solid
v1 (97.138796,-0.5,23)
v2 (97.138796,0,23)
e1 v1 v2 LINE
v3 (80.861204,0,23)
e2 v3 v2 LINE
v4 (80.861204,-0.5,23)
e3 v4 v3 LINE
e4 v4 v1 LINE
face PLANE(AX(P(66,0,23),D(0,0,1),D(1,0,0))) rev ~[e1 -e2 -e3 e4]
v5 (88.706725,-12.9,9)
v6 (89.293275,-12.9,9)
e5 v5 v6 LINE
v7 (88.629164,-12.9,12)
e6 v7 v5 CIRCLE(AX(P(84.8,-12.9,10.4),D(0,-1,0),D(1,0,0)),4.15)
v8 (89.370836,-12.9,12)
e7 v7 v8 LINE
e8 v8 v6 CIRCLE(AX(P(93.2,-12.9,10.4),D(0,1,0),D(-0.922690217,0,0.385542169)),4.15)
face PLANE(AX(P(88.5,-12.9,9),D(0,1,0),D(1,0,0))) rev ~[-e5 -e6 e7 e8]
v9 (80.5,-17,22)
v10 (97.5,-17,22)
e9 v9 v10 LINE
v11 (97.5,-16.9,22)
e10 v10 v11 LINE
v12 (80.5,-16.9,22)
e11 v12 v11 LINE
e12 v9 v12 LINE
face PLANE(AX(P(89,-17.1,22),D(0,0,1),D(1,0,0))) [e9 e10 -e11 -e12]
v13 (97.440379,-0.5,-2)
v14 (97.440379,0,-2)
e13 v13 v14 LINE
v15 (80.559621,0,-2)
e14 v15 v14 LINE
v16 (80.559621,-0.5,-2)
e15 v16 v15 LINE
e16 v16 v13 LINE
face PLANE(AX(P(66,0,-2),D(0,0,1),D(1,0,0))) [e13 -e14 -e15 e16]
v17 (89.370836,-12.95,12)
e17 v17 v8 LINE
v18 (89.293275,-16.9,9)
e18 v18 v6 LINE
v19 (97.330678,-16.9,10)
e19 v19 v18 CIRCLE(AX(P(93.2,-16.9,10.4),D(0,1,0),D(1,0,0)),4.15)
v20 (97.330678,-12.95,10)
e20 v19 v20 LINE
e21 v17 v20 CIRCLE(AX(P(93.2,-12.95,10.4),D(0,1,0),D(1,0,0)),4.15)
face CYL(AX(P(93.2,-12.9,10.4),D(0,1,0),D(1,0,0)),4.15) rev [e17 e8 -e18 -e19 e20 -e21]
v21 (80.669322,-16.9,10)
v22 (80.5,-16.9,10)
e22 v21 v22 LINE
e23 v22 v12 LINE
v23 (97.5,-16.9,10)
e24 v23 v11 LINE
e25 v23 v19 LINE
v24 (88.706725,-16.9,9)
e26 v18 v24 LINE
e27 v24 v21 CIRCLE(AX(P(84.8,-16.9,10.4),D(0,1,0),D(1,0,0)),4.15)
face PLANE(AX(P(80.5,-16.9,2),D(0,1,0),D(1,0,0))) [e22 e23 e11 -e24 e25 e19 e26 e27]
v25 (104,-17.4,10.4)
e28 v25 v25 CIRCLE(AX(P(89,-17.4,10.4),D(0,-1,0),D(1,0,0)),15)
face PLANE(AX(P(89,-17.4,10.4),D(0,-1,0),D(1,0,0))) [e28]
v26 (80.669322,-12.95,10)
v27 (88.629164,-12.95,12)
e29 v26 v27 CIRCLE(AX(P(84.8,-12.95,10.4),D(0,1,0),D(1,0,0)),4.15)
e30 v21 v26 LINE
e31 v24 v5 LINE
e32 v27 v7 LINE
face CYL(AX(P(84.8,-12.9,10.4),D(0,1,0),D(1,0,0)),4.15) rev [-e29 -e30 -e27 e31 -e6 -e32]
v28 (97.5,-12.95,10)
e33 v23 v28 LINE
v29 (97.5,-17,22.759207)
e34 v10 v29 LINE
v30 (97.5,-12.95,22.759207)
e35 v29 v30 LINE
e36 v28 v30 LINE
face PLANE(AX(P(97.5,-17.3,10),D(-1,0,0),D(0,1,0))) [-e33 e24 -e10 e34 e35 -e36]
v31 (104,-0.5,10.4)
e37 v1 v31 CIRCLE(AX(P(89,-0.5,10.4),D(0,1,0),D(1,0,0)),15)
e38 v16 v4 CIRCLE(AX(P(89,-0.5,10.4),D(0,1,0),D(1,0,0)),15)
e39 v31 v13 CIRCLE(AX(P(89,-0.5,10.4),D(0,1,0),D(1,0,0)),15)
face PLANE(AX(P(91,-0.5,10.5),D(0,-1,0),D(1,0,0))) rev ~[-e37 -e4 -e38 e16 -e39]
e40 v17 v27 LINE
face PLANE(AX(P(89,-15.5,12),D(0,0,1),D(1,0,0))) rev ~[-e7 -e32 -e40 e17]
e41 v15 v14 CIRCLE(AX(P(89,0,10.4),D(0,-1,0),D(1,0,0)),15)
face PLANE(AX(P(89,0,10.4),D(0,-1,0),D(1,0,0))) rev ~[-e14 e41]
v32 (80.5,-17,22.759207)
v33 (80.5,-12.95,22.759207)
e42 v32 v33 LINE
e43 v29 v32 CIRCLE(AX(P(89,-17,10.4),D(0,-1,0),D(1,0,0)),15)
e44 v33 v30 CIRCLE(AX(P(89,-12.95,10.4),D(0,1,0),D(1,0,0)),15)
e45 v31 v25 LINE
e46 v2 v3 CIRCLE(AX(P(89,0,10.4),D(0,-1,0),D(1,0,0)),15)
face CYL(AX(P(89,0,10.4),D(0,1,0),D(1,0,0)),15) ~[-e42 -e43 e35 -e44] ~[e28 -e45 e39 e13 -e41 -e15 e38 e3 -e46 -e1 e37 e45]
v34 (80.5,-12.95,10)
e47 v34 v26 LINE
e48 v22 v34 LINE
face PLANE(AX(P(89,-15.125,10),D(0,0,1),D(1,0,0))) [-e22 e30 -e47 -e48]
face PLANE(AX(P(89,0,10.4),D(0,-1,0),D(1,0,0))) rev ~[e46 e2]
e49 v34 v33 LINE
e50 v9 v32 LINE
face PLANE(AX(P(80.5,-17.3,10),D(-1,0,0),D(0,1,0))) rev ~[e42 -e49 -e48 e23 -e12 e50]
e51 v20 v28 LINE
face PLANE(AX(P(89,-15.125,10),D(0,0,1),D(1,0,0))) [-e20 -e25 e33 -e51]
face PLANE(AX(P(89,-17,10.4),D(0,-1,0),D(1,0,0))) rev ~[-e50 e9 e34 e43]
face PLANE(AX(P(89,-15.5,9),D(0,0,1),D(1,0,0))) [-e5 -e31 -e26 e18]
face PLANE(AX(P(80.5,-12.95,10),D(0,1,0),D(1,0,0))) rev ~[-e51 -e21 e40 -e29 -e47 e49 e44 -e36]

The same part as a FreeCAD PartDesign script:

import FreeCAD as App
import Part
import Sketcher
from FreeCAD import Vector
Q = App.Units.Quantity


def add_polygon(sketch, points):
    """Adds a closed chain of lines whose ends are joined by coincident constraints."""
    first, n = sketch.GeometryCount, len(points)
    for a, b in zip(points, points[1:] + points[:1]):
        sketch.addGeometry(Part.LineSegment(App.Vector(*a, 0), App.Vector(*b, 0)), False)
    for i in range(n):
        sketch.addConstraint(Sketcher.Constraint("Coincident", first + i, 2, first + (i + 1) % n, 1))

doc = App.newDocument("Part")
params = doc.addObject("Spreadsheet::Sheet", "Params")
for row, (alias, value) in enumerate([
    ("sketch1_diameter", "30 mm"),
    ("pad1_length", "0.4 mm"),
    ("sketch2_width", "17 mm"),
    ("sketch2_height", "0.4 mm"),
    ("pad2_length", "20 mm"),
    ("sketch3_width", "17 mm"),
    ("sketch3_height", "4.35 mm"),
    ("pad3_length", "28 mm"),
    ("sketch4_width", "1 mm"),
    ("sketch4_height", "5.2 mm"),
    ("pad4_length", "3 mm"),
    ("sketch5_diameter", "8.3 mm"),
    ("pad5_length", "10 mm"),
    ("sketch6_diameter", "8.3 mm"),
    ("pad6_length", "10 mm"),
    ("sketch7_width", "50 mm"),
    ("sketch7_height", "25 mm"),
    ("pad7_length", "0.5 mm"),
    ("sketch8_diameter", "30 mm"),
    ("pad8_length", "17.25 mm"),
], start=1):
    params.set(f"A{row}", alias)
    params.set(f"B{row}", "=" + value)
    params.setAlias(f"B{row}", alias)

body = doc.addObject("PartDesign::Body", "Body")

# Sketch on XZ plane
sketch1 = doc.addObject("Sketcher::SketchObject", "Sketch")
body.addObject(sketch1)
sketch1.AttachmentSupport = (doc.XZ_Plane, [""])
sketch1.MapMode = "FlatFace"
sketch1.addGeometry(Part.Circle(Vector(89, 10.4, 0), Vector(0, 0, 1), 15), False)
sketch1.addConstraint([
    Sketcher.Constraint("Diameter", 0, Q("30 mm")),
    Sketcher.Constraint("DistanceX", -1, 1, 0, 3, Q("89 mm")),
    Sketcher.Constraint("DistanceY", -1, 1, 0, 3, Q("10.4 mm")),
])
sketch1.setExpression("Constraints[0]", "Params.sketch1_diameter")
pad1 = doc.addObject("PartDesign::Pad", "Pad")
body.addObject(pad1)
pad1.Profile = sketch1
pad1.setExpression("Length", "Params.pad1_length")
body2 = doc.addObject("PartDesign::Body", "Body001")
doc.recompute()

body.Placement = App.Placement(Vector(0, -17, 0), App.Rotation(Vector(0, 0, 1), 0))
boolean = doc.addObject("PartDesign::Boolean", "Boolean")
body2.addObject(boolean)
boolean.Type = "Fuse"
boolean.addObjects([body])
body3 = doc.addObject("PartDesign::Body", "Body002")

# Sketch on XY plane
sketch2 = doc.addObject("Sketcher::SketchObject", "Sketch001")
body3.addObject(sketch2)
sketch2.AttachmentSupport = (doc.getObject("XY_Plane002"), [""])
sketch2.MapMode = "FlatFace"
sketch2.AttachmentOffset = App.Placement(Vector(0, 0, 2), App.Rotation())
add_polygon(sketch2, [(80.5, -16.9), (80.5, -17.3), (97.5, -17.3), (97.5, -16.9)])  # lines 0-3
sketch2.addConstraint([
    Sketcher.Constraint("Vertical", 0),
    Sketcher.Constraint("Horizontal", 1),
    Sketcher.Constraint("Vertical", 2),
    Sketcher.Constraint("Horizontal", 3),
    Sketcher.Constraint("DistanceX", 1, 1, 1, 2, Q("17 mm")),
    Sketcher.Constraint("DistanceY", 0, 2, 0, 1, Q("0.4 mm")),
    Sketcher.Constraint("DistanceX", -1, 1, 0, 2, Q("80.5 mm")),
    Sketcher.Constraint("DistanceY", 0, 2, -1, 1, Q("17.3 mm")),
])
sketch2.setExpression("Constraints[8]", "Params.sketch2_width")
sketch2.setExpression("Constraints[9]", "Params.sketch2_height")
pad2 = doc.addObject("PartDesign::Pad", "Pad001")
body3.addObject(pad2)
pad2.Profile = sketch2
pad2.setExpression("Length", "Params.pad2_length")
body4 = doc.addObject("PartDesign::Body", "Body003")

# Sketch on XY plane
sketch3 = doc.addObject("Sketcher::SketchObject", "Sketch002")
body4.addObject(sketch3)
sketch3.AttachmentSupport = (doc.getObject("XY_Plane003"), [""])
sketch3.MapMode = "FlatFace"
sketch3.AttachmentOffset = App.Placement(Vector(0, 0, 10), App.Rotation())
add_polygon(sketch3, [(80.5, -12.95), (80.5, -17.3), (97.5, -17.3), (97.5, -12.95)])  # lines 0-3
sketch3.addConstraint([
    Sketcher.Constraint("Vertical", 0),
    Sketcher.Constraint("Horizontal", 1),
    Sketcher.Constraint("Vertical", 2),
    Sketcher.Constraint("Horizontal", 3),
    Sketcher.Constraint("DistanceX", 1, 1, 1, 2, Q("17 mm")),
    Sketcher.Constraint("DistanceY", 0, 2, 0, 1, Q("4.35 mm")),
    Sketcher.Constraint("DistanceX", -1, 1, 0, 2, Q("80.5 mm")),
    Sketcher.Constraint("DistanceY", 0, 2, -1, 1, Q("17.3 mm")),
])
sketch3.setExpression("Constraints[8]", "Params.sketch3_width")
sketch3.setExpression("Constraints[9]", "Params.sketch3_height")
pad3 = doc.addObject("PartDesign::Pad", "Pad002")
body4.addObject(pad3)
pad3.Profile = sketch3
pad3.setExpression("Length", "Params.pad3_length")
body5 = doc.addObject("PartDesign::Body", "Body004")

# Sketch on XY plane
sketch4 = doc.addObject("Sketcher::SketchObject", "Sketch003")
body5.addObject(sketch4)
sketch4.AttachmentSupport = (doc.getObject("XY_Plane004"), [""])
sketch4.MapMode = "FlatFace"
sketch4.AttachmentOffset = App.Placement(Vector(0, 0, 9), App.Rotation())
add_polygon(sketch4, [(88.5, -12.9), (88.5, -18.1), (89.5, -18.1), (89.5, -12.9)])  # lines 0-3
sketch4.addConstraint([
    Sketcher.Constraint("Vertical", 0),
    Sketcher.Constraint("Horizontal", 1),
    Sketcher.Constraint("Vertical", 2),
    Sketcher.Constraint("Horizontal", 3),
    Sketcher.Constraint("DistanceX", 1, 1, 1, 2, Q("1 mm")),
    Sketcher.Constraint("DistanceY", 0, 2, 0, 1, Q("5.2 mm")),
    Sketcher.Constraint("DistanceX", -1, 1, 0, 2, Q("88.5 mm")),
    Sketcher.Constraint("DistanceY", 0, 2, -1, 1, Q("18.1 mm")),
])
sketch4.setExpression("Constraints[8]", "Params.sketch4_width")
sketch4.setExpression("Constraints[9]", "Params.sketch4_height")
pad4 = doc.addObject("PartDesign::Pad", "Pad003")
body5.addObject(pad4)
pad4.Profile = sketch4
pad4.setExpression("Length", "Params.pad4_length")
body6 = doc.addObject("PartDesign::Body", "Body005")

# Sketch on XZ plane
sketch5 = doc.addObject("Sketcher::SketchObject", "Sketch004")
body6.addObject(sketch5)
sketch5.AttachmentSupport = (doc.getObject("XZ_Plane005"), [""])
sketch5.MapMode = "FlatFace"
sketch5.AttachmentOffset = App.Placement(Vector(0, 0, 12.9), App.Rotation())
sketch5.addGeometry(Part.Circle(Vector(93.2, 10.4, 0), Vector(0, 0, 1), 4.15), False)
sketch5.addConstraint([
    Sketcher.Constraint("Diameter", 0, Q("8.3 mm")),
    Sketcher.Constraint("DistanceX", -1, 1, 0, 3, Q("93.2 mm")),
    Sketcher.Constraint("DistanceY", -1, 1, 0, 3, Q("10.4 mm")),
])
sketch5.setExpression("Constraints[0]", "Params.sketch5_diameter")
pad5 = doc.addObject("PartDesign::Pad", "Pad004")
body6.addObject(pad5)
pad5.Profile = sketch5
pad5.setExpression("Length", "Params.pad5_length")
body7 = doc.addObject("PartDesign::Body", "Body006")

# Sketch on XZ plane
sketch6 = doc.addObject("Sketcher::SketchObject", "Sketch005")
body7.addObject(sketch6)
sketch6.AttachmentSupport = (doc.getObject("XZ_Plane006"), [""])
sketch6.MapMode = "FlatFace"
sketch6.AttachmentOffset = App.Placement(Vector(0, 0, 12.9), App.Rotation())
sketch6.addGeometry(Part.Circle(Vector(84.8, 10.4, 0), Vector(0, 0, 1), 4.15), False)
sketch6.addConstraint([
    Sketcher.Constraint("Diameter", 0, Q("8.3 mm")),
    Sketcher.Constraint("DistanceX", -1, 1, 0, 3, Q("84.8 mm")),
    Sketcher.Constraint("DistanceY", -1, 1, 0, 3, Q("10.4 mm")),
])
sketch6.setExpression("Constraints[0]", "Params.sketch6_diameter")
pad6 = doc.addObject("PartDesign::Pad", "Pad005")
body7.addObject(pad6)
pad6.Profile = sketch6
pad6.setExpression("Length", "Params.pad6_length")
body8 = doc.addObject("PartDesign::Body", "Body007")

# Sketch on XZ plane
sketch7 = doc.addObject("Sketcher::SketchObject", "Sketch006")
body8.addObject(sketch7)
sketch7.AttachmentSupport = (doc.getObject("XZ_Plane007"), [""])
sketch7.MapMode = "FlatFace"
add_polygon(sketch7, [(66, 23), (66, -2), (116, -2), (116, 23)])  # lines 0-3
sketch7.addConstraint([
    Sketcher.Constraint("Vertical", 0),
    Sketcher.Constraint("Horizontal", 1),
    Sketcher.Constraint("Vertical", 2),
    Sketcher.Constraint("Horizontal", 3),
    Sketcher.Constraint("DistanceX", 1, 1, 1, 2, Q("50 mm")),
    Sketcher.Constraint("DistanceY", 0, 2, 0, 1, Q("25 mm")),
    Sketcher.Constraint("DistanceX", -1, 1, 0, 2, Q("66 mm")),
    Sketcher.Constraint("DistanceY", 0, 2, -1, 1, Q("2 mm")),
])
sketch7.setExpression("Constraints[8]", "Params.sketch7_width")
sketch7.setExpression("Constraints[9]", "Params.sketch7_height")
pad7 = doc.addObject("PartDesign::Pad", "Pad006")
body8.addObject(pad7)
pad7.Profile = sketch7
pad7.setExpression("Length", "Params.pad7_length")
body9 = doc.addObject("PartDesign::Body", "Body008")

# Sketch on XZ plane
sketch8 = doc.addObject("Sketcher::SketchObject", "Sketch007")
body9.addObject(sketch8)
sketch8.AttachmentSupport = (doc.getObject("XZ_Plane008"), [""])
sketch8.MapMode = "FlatFace"
sketch8.addGeometry(Part.Circle(Vector(89, 10.4, 0), Vector(0, 0, 1), 15), False)
sketch8.addConstraint([
    Sketcher.Constraint("Diameter", 0, Q("30 mm")),
    Sketcher.Constraint("DistanceX", -1, 1, 0, 3, Q("89 mm")),
    Sketcher.Constraint("DistanceY", -1, 1, 0, 3, Q("10.4 mm")),
])
sketch8.setExpression("Constraints[0]", "Params.sketch8_diameter")
pad8 = doc.addObject("PartDesign::Pad", "Pad007")
body9.addObject(pad8)
pad8.Profile = sketch8
pad8.setExpression("Length", "Params.pad8_length")
doc.recompute()

boolean2 = doc.addObject("PartDesign::Boolean", "Boolean001")
body9.addObject(boolean2)
boolean2.Type = "Cut"
boolean2.addObjects([body8])
doc.recompute()

boolean3 = doc.addObject("PartDesign::Boolean", "Boolean002")
body9.addObject(boolean3)
boolean3.Type = "Cut"
boolean3.addObjects([body7])
doc.recompute()

boolean4 = doc.addObject("PartDesign::Boolean", "Boolean003")
body9.addObject(boolean4)
boolean4.Type = "Cut"
boolean4.addObjects([body6])
doc.recompute()

boolean5 = doc.addObject("PartDesign::Boolean", "Boolean004")
body9.addObject(boolean5)
boolean5.Type = "Cut"
boolean5.addObjects([body5])
doc.recompute()

boolean6 = doc.addObject("PartDesign::Boolean", "Boolean005")
body9.addObject(boolean6)
boolean6.Type = "Cut"
boolean6.addObjects([body4])
doc.recompute()

boolean7 = doc.addObject("PartDesign::Boolean", "Boolean006")
body9.addObject(boolean7)
boolean7.Type = "Fuse"
boolean7.addObjects([body3])
doc.recompute()

boolean8 = doc.addObject("PartDesign::Boolean", "Boolean007")
body9.addObject(boolean8)
boolean8.Type = "Fuse"
boolean8.addObjects([body2])

doc.recompute()
